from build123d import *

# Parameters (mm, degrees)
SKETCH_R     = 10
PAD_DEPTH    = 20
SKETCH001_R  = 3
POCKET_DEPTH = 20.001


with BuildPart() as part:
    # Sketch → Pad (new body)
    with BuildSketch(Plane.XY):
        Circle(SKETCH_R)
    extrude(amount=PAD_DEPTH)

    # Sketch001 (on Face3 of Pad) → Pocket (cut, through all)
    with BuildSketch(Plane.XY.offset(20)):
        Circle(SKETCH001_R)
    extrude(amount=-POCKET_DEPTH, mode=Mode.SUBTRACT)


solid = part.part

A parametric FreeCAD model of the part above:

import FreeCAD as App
import Part
import Sketcher

doc = App.newDocument("Part")
body = doc.addObject("PartDesign::Body", "Body")

# Sketch on XY plane
sketch1 = body.newObject("Sketcher::SketchObject", "Sketch")
sketch1.AttachmentSupport = (doc.getObject("XY_Plane"), [""])
sketch1.MapMode = "FlatFace"
sketch1.addGeometry(Part.Circle(App.Vector(0, 0, 0), App.Vector(0, 0, 1), 10), False)
sketch1.addConstraint(Sketcher.Constraint("Coincident", 0, 3, -1, 1))
sketch1.addConstraint(Sketcher.Constraint("Diameter", 0, 20.0))
pad1 = body.newObject("PartDesign::Pad", "Pad")
pad1.Profile = sketch1
pad1.Length = 20

# Sketch on XY plane
sketch2 = body.newObject("Sketcher::SketchObject", "Sketch001")
sketch2.AttachmentSupport = (doc.getObject("XY_Plane"), [""])
sketch2.MapMode = "FlatFace"
sketch2.AttachmentOffset = App.Placement(App.Vector(0, 0, 20), App.Rotation())
sketch2.addGeometry(Part.Circle(App.Vector(0, 0, 0), App.Vector(0, 0, 1), 3), False)
sketch2.addConstraint(Sketcher.Constraint("Coincident", 0, 3, -1, 1))
sketch2.addConstraint(Sketcher.Constraint("Diameter", 0, 6.0))
pocket1 = body.newObject("PartDesign::Pocket", "Pocket")
pocket1.Profile = sketch2
pocket1.Type = "ThroughAll"

doc.recompute()
